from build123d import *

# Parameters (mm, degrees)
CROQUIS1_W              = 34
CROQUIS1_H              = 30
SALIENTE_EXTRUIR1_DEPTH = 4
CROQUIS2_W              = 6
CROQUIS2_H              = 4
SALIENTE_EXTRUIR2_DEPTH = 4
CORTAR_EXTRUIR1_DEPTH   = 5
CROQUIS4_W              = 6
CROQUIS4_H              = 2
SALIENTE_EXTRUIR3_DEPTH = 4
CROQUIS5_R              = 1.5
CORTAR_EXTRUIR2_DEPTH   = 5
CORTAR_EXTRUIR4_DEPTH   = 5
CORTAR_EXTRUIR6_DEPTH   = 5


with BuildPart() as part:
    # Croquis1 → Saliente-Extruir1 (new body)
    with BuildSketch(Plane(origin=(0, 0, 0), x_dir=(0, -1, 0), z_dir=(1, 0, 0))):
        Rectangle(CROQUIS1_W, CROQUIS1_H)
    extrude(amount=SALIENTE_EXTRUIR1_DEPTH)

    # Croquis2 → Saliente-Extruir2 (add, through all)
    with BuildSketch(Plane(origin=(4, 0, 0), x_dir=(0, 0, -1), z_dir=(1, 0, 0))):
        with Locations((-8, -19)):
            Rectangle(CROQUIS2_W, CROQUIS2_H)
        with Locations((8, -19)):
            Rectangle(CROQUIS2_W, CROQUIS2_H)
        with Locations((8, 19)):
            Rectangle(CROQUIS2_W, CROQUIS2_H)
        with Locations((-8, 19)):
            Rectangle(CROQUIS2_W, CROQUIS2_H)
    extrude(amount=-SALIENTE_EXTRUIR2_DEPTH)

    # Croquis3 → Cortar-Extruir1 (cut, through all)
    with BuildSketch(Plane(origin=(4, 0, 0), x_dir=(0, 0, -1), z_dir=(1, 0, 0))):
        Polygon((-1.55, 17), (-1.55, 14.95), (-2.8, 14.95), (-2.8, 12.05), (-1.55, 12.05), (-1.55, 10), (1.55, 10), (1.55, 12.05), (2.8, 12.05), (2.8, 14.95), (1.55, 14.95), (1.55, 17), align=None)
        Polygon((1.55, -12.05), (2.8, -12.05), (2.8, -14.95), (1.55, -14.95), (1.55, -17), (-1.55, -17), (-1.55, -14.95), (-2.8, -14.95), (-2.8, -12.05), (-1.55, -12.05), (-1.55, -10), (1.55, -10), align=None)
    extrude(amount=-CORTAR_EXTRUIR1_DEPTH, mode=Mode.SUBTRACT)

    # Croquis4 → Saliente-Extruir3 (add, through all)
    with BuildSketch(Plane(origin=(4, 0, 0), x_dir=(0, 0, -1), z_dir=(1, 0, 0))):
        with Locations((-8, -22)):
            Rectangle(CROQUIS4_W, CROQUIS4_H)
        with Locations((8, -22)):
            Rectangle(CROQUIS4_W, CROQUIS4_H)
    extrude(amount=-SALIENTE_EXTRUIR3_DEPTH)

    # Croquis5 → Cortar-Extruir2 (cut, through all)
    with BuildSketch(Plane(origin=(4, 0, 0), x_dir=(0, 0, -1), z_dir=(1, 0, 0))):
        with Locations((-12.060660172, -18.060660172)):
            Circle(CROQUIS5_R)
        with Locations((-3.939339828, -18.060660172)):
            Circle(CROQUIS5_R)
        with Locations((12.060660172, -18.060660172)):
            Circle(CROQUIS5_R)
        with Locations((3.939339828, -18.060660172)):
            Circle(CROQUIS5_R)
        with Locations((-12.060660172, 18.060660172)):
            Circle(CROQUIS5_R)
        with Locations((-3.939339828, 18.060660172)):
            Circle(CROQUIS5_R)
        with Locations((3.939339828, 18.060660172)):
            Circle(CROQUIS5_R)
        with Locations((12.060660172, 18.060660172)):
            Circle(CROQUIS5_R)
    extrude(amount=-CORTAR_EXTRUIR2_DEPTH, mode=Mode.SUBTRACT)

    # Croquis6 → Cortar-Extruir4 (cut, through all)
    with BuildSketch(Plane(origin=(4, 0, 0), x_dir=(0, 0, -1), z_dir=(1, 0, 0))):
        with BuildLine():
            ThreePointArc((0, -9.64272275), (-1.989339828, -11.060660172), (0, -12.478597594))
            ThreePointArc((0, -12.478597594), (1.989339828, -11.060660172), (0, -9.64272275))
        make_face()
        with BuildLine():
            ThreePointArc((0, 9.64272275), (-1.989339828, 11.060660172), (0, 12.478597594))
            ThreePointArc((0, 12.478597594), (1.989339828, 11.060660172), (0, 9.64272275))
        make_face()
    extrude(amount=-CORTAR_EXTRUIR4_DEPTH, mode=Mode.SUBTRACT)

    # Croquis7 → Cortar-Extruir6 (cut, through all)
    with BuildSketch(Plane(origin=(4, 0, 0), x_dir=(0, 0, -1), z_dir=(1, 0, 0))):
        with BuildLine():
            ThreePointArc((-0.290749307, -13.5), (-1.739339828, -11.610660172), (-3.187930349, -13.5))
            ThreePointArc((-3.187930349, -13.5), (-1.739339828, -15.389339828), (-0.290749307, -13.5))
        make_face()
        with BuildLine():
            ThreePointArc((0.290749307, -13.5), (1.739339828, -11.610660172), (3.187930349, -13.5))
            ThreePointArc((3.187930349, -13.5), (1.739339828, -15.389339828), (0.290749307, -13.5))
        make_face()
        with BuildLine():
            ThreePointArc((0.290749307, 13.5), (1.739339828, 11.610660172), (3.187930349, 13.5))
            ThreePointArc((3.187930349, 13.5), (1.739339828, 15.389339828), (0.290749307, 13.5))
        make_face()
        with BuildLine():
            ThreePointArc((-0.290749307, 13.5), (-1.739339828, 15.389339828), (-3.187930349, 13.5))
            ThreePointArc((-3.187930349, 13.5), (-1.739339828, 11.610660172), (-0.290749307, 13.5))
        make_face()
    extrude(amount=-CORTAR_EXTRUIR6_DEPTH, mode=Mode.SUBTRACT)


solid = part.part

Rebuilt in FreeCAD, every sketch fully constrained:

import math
import FreeCAD as App
import Part
import Sketcher

V = App.Vector

doc = App.newDocument("Part")
params = doc.addObject("Spreadsheet::Sheet", "Params")
for row, (alias, value) in enumerate([
    ("sketch1_width", "34 mm"),
    ("sketch1_height", "30 mm"),
    ("pad1_length", "4 mm"),
    ("sketch2_width", "4 mm"),
    ("sketch2_height", "6 mm"),
    ("sketch3_width", "2.9 mm"),
    ("sketch3_height", "3.1 mm"),
    ("sketch3_height2", "1.25 mm"),
    ("sketch4_width", "2 mm"),
    ("sketch4_height", "6 mm"),
    ("pad3_length", "4 mm"),
    ("sketch5_diameter", "3 mm"),
    ("sketch6_radius", "1.5 mm"),
    ("sketch7_radius", "1.5 mm"),
], start=1):
    params.set(f"A{row}", alias)
    params.set(f"B{row}", "=" + value)
    params.setAlias(f"B{row}", alias)

body = doc.addObject("PartDesign::Body", "Body")

# Sketch on YZ plane
sketch1 = body.newObject("Sketcher::SketchObject", "Sketch")
sketch1.AttachmentSupport = (doc.getObject("YZ_Plane"), [""])
sketch1.MapMode = "FlatFace"
sketch1.addGeometry([
    Part.LineSegment(V(17, -15, 0), V(17, 15, 0)),
    Part.LineSegment(V(17, 15, 0), V(-17, 15, 0)),
    Part.LineSegment(V(-17, 15, 0), V(-17, -15, 0)),
    Part.LineSegment(V(-17, -15, 0), V(17, -15, 0)),
], False)
sketch1.addConstraint([
    Sketcher.Constraint("Coincident", 0, 2, 1, 1),
    Sketcher.Constraint("Coincident", 1, 2, 2, 1),
    Sketcher.Constraint("Coincident", 2, 2, 3, 1),
    Sketcher.Constraint("Coincident", 3, 2, 0, 1),
    Sketcher.Constraint("Vertical", 0),
    Sketcher.Constraint("Horizontal", 1),
    Sketcher.Constraint("Vertical", 2),
    Sketcher.Constraint("Horizontal", 3),
    Sketcher.Constraint("Symmetric", 0, 2, 2, 2, -1, 1),
    Sketcher.Constraint("DistanceX", 1, 2, 1, 1, 34.0),
    Sketcher.Constraint("DistanceY", 0, 1, 0, 2, 30.0),
])
sketch1.setExpression("Constraints[9]", "Params.sketch1_width")
sketch1.setExpression("Constraints[10]", "Params.sketch1_height")
pad1 = body.newObject("PartDesign::Pad", "Pad")
pad1.Profile = sketch1
pad1.setExpression("Length", "Params.pad1_length")

# Sketch on YZ plane
sketch2 = body.newObject("Sketcher::SketchObject", "Sketch001")
sketch2.AttachmentSupport = (doc.getObject("YZ_Plane"), [""])
sketch2.MapMode = "FlatFace"
sketch2.AttachmentOffset = App.Placement(V(0, 0, 4), App.Rotation())
sketch2.addGeometry([
    Part.LineSegment(V(-17, 11, 0), V(-21, 11, 0)),  # 0
    Part.LineSegment(V(-21, 11, 0), V(-21, 5, 0)),  # 1
    Part.LineSegment(V(-21, 5, 0), V(-17, 5, 0)),  # 2
    Part.LineSegment(V(-17, 5, 0), V(-17, 11, 0)),  # 3
    Part.LineSegment(V(-17, -5, 0), V(-21, -5, 0)),  # 4
    Part.LineSegment(V(-21, -5, 0), V(-21, -11, 0)),  # 5
    Part.LineSegment(V(-21, -11, 0), V(-17, -11, 0)),  # 6
    Part.LineSegment(V(-17, -11, 0), V(-17, -5, 0)),  # 7
    Part.LineSegment(V(21, -5, 0), V(17, -5, 0)),  # 8
    Part.LineSegment(V(17, -5, 0), V(17, -11, 0)),  # 9
    Part.LineSegment(V(17, -11, 0), V(21, -11, 0)),  # 10
    Part.LineSegment(V(21, -11, 0), V(21, -5, 0)),  # 11
    Part.LineSegment(V(21, 11, 0), V(17, 11, 0)),  # 12
    Part.LineSegment(V(17, 11, 0), V(17, 5, 0)),  # 13
    Part.LineSegment(V(17, 5, 0), V(21, 5, 0)),  # 14
    Part.LineSegment(V(21, 5, 0), V(21, 11, 0)),  # 15
], False)
sketch2.addConstraint([
    Sketcher.Constraint("Coincident", 0, 2, 1, 1),
    Sketcher.Constraint("Coincident", 1, 2, 2, 1),
    Sketcher.Constraint("Coincident", 2, 2, 3, 1),
    Sketcher.Constraint("Coincident", 3, 2, 0, 1),
    Sketcher.Constraint("Coincident", 4, 2, 5, 1),
    Sketcher.Constraint("Coincident", 5, 2, 6, 1),
    Sketcher.Constraint("Coincident", 6, 2, 7, 1),
    Sketcher.Constraint("Coincident", 7, 2, 4, 1),
    Sketcher.Constraint("Coincident", 8, 2, 9, 1),
    Sketcher.Constraint("Coincident", 9, 2, 10, 1),
    Sketcher.Constraint("Coincident", 10, 2, 11, 1),
    Sketcher.Constraint("Coincident", 11, 2, 8, 1),
    Sketcher.Constraint("Coincident", 12, 2, 13, 1),
    Sketcher.Constraint("Coincident", 13, 2, 14, 1),
    Sketcher.Constraint("Coincident", 14, 2, 15, 1),
    Sketcher.Constraint("Coincident", 15, 2, 12, 1),
    Sketcher.Constraint("Horizontal", 0),
    Sketcher.Constraint("Vertical", 1),
    Sketcher.Constraint("Horizontal", 2),
    Sketcher.Constraint("Vertical", 3),
    Sketcher.Constraint("Horizontal", 4),
    Sketcher.Constraint("Vertical", 5),
    Sketcher.Constraint("Horizontal", 6),
    Sketcher.Constraint("Vertical", 7),
    Sketcher.Constraint("Horizontal", 8),
    Sketcher.Constraint("Vertical", 9),
    Sketcher.Constraint("Horizontal", 10),
    Sketcher.Constraint("Vertical", 11),
    Sketcher.Constraint("Horizontal", 12),
    Sketcher.Constraint("Vertical", 13),
    Sketcher.Constraint("Horizontal", 14),
    Sketcher.Constraint("Vertical", 15),
    Sketcher.Constraint("Symmetric", 2, 2, 8, 2, -1, 1),
    Sketcher.Constraint("Symmetric", 0, 2, 10, 2, -1, 1),
    Sketcher.Constraint("Symmetric", 6, 2, 12, 2, -1, 1),
    Sketcher.Constraint("Symmetric", 4, 2, 14, 2, -1, 1),
    Sketcher.Constraint("Symmetric", 7, 2, 8, 2, -2),
    Sketcher.Constraint("Symmetric", 5, 2, 10, 2, -2),
    Sketcher.Constraint("DistanceX", 0, 2, 0, 1, 4.0),
    Sketcher.Constraint("DistanceY", 1, 2, 1, 1, 6.0),
    Sketcher.Constraint("DistanceX", 0, 2, -1, 1, 21.0),
    Sketcher.Constraint("DistanceY", -1, 1, 0, 2, 11.0),
])
sketch2.setExpression("Constraints[38]", "Params.sketch2_width")
sketch2.setExpression("Constraints[39]", "Params.sketch2_height")
pad2 = body.newObject("PartDesign::Pad", "Pad001")
pad2.Profile = sketch2
pad2.Type = "UpToLast"
pad2.Reversed = True

# Sketch on YZ plane
sketch3 = body.newObject("Sketcher::SketchObject", "Sketch002")
sketch3.AttachmentSupport = (doc.getObject("YZ_Plane"), [""])
sketch3.MapMode = "FlatFace"
sketch3.AttachmentOffset = App.Placement(V(0, 0, 4), App.Rotation())
sketch3.addGeometry([
    Part.LineSegment(V(17, 1.6, 0), V(14.9, 1.6, 0)),  # 0
    Part.LineSegment(V(14.9, 1.6, 0), V(14.9, 2.8, 0)),  # 1
    Part.LineSegment(V(14.9, 2.8, 0), V(12.1, 2.8, 0)),  # 2
    Part.LineSegment(V(12.1, 2.8, 0), V(12.1, 1.6, 0)),  # 3
    Part.LineSegment(V(12.1, 1.6, 0), V(10, 1.6, 0)),  # 4
    Part.LineSegment(V(10, 1.6, 0), V(10, -1.6, 0)),  # 5
    Part.LineSegment(V(10, -1.6, 0), V(12.1, -1.6, 0)),  # 6
    Part.LineSegment(V(12.1, -1.6, 0), V(12.1, -2.8, 0)),  # 7
    Part.LineSegment(V(12.1, -2.8, 0), V(14.9, -2.8, 0)),  # 8
    Part.LineSegment(V(14.9, -2.8, 0), V(14.9, -1.6, 0)),  # 9
    Part.LineSegment(V(14.9, -1.6, 0), V(17, -1.6, 0)),  # 10
    Part.LineSegment(V(17, -1.6, 0), V(17, 1.6, 0)),  # 11
    Part.LineSegment(V(-12.1, -2.8, 0), V(-12.1, -1.6, 0)),  # 12
    Part.LineSegment(V(-12.1, -1.6, 0), V(-10, -1.6, 0)),  # 13
    Part.LineSegment(V(-10, -1.6, 0), V(-10, 1.6, 0)),  # 14
    Part.LineSegment(V(-10, 1.6, 0), V(-12.1, 1.6, 0)),  # 15
    Part.LineSegment(V(-12.1, 1.6, 0), V(-12.1, 2.8, 0)),  # 16
    Part.LineSegment(V(-12.1, 2.8, 0), V(-14.9, 2.8, 0)),  # 17
    Part.LineSegment(V(-14.9, 2.8, 0), V(-14.9, 1.6, 0)),  # 18
    Part.LineSegment(V(-14.9, 1.6, 0), V(-17, 1.6, 0)),  # 19
    Part.LineSegment(V(-17, 1.6, 0), V(-17, -1.6, 0)),  # 20
    Part.LineSegment(V(-17, -1.6, 0), V(-14.9, -1.6, 0)),  # 21
    Part.LineSegment(V(-14.9, -1.6, 0), V(-14.9, -2.8, 0)),  # 22
    Part.LineSegment(V(-14.9, -2.8, 0), V(-12.1, -2.8, 0)),  # 23
], False)
sketch3.addConstraint([
    Sketcher.Constraint("Coincident", 0, 2, 1, 1),
    Sketcher.Constraint("Coincident", 1, 2, 2, 1),
    Sketcher.Constraint("Coincident", 2, 2, 3, 1),
    Sketcher.Constraint("Coincident", 3, 2, 4, 1),
    Sketcher.Constraint("Coincident", 4, 2, 5, 1),
    Sketcher.Constraint("Coincident", 5, 2, 6, 1),
    Sketcher.Constraint("Coincident", 6, 2, 7, 1),
    Sketcher.Constraint("Coincident", 7, 2, 8, 1),
    Sketcher.Constraint("Coincident", 8, 2, 9, 1),
    Sketcher.Constraint("Coincident", 9, 2, 10, 1),
    Sketcher.Constraint("Coincident", 10, 2, 11, 1),
    Sketcher.Constraint("Coincident", 11, 2, 0, 1),
    Sketcher.Constraint("Coincident", 12, 2, 13, 1),
    Sketcher.Constraint("Coincident", 13, 2, 14, 1),
    Sketcher.Constraint("Coincident", 14, 2, 15, 1),
    Sketcher.Constraint("Coincident", 15, 2, 16, 1),
    Sketcher.Constraint("Coincident", 16, 2, 17, 1),
    Sketcher.Constraint("Coincident", 17, 2, 18, 1),
    Sketcher.Constraint("Coincident", 18, 2, 19, 1),
    Sketcher.Constraint("Coincident", 19, 2, 20, 1),
    Sketcher.Constraint("Coincident", 20, 2, 21, 1),
    Sketcher.Constraint("Coincident", 21, 2, 22, 1),
    Sketcher.Constraint("Coincident", 22, 2, 23, 1),
    Sketcher.Constraint("Coincident", 23, 2, 12, 1),
    Sketcher.Constraint("Horizontal", 0),
    Sketcher.Constraint("Vertical", 1),
    Sketcher.Constraint("Horizontal", 2),
    Sketcher.Constraint("Vertical", 3),
    Sketcher.Constraint("Horizontal", 4),
    Sketcher.Constraint("Vertical", 5),
    Sketcher.Constraint("Horizontal", 6),
    Sketcher.Constraint("Vertical", 7),
    Sketcher.Constraint("Horizontal", 8),
    Sketcher.Constraint("Vertical", 9),
    Sketcher.Constraint("Horizontal", 10),
    Sketcher.Constraint("Vertical", 11),
    Sketcher.Constraint("Vertical", 12),
    Sketcher.Constraint("Horizontal", 13),
    Sketcher.Constraint("Vertical", 14),
    Sketcher.Constraint("Horizontal", 15),
    Sketcher.Constraint("Vertical", 16),
    Sketcher.Constraint("Horizontal", 17),
    Sketcher.Constraint("Vertical", 18),
    Sketcher.Constraint("Horizontal", 19),
    Sketcher.Constraint("Vertical", 20),
    Sketcher.Constraint("Horizontal", 21),
    Sketcher.Constraint("Vertical", 22),
    Sketcher.Constraint("Horizontal", 23),
    Sketcher.Constraint("Symmetric", 3, 2, 12, 2, -1, 1),
    Sketcher.Constraint("Symmetric", 5, 2, 14, 2, -1, 1),
    Sketcher.Constraint("Symmetric", 7, 2, 16, 2, -1, 1),
    Sketcher.Constraint("Symmetric", 9, 2, 18, 2, -1, 1),
    Sketcher.Constraint("Symmetric", 11, 2, 20, 2, -1, 1),
    Sketcher.Constraint("Symmetric", 1, 2, 22, 2, -1, 1),
    Sketcher.Constraint("Symmetric", 6, 2, 12, 2, -2),
    Sketcher.Constraint("Symmetric", 1, 2, 17, 2, -2),
    Sketcher.Constraint("Horizontal", 0, 2, 3, 2),
    Sketcher.Constraint("Horizontal", 6, 2, 9, 2),
    Sketcher.Constraint("Equal", 0, 4),
    Sketcher.Constraint("DistanceX", 2, 2, 2, 1, 2.9),
    Sketcher.Constraint("DistanceY", 5, 2, 5, 1, 3.1),
    Sketcher.Constraint("DistanceX", -1, 1, 4, 2, 10.0),
    Sketcher.Constraint("DistanceX", -1, 1, 10, 2, 17.0),
    Sketcher.Constraint("DistanceY", 1, 1, 1, 2, 1.25),
])
sketch3.setExpression("Constraints[59]", "Params.sketch3_width")
sketch3.setExpression("Constraints[60]", "Params.sketch3_height")
sketch3.setExpression("Constraints[63]", "Params.sketch3_height2")
pocket1 = body.newObject("PartDesign::Pocket", "Pocket")
pocket1.Profile = sketch3
pocket1.Type = "ThroughAll"

# Sketch on YZ plane
sketch4 = body.newObject("Sketcher::SketchObject", "Sketch003")
sketch4.AttachmentSupport = (doc.getObject("YZ_Plane"), [""])
sketch4.MapMode = "FlatFace"
sketch4.AttachmentOffset = App.Placement(V(0, 0, 4), App.Rotation())
sketch4.addGeometry([
    Part.LineSegment(V(-21, 11, 0), V(-23, 11, 0)),  # 0
    Part.LineSegment(V(-23, 11, 0), V(-23, 5, 0)),  # 1
    Part.LineSegment(V(-23, 5, 0), V(-21, 5, 0)),  # 2
    Part.LineSegment(V(-21, 5, 0), V(-21, 11, 0)),  # 3
    Part.LineSegment(V(-21, -5, 0), V(-23, -5, 0)),  # 4
    Part.LineSegment(V(-23, -5, 0), V(-23, -11, 0)),  # 5
    Part.LineSegment(V(-23, -11, 0), V(-21, -11, 0)),  # 6
    Part.LineSegment(V(-21, -11, 0), V(-21, -5, 0)),  # 7
], False)
sketch4.addConstraint([
    Sketcher.Constraint("Coincident", 0, 2, 1, 1),
    Sketcher.Constraint("Coincident", 1, 2, 2, 1),
    Sketcher.Constraint("Coincident", 2, 2, 3, 1),
    Sketcher.Constraint("Coincident", 3, 2, 0, 1),
    Sketcher.Constraint("Coincident", 4, 2, 5, 1),
    Sketcher.Constraint("Coincident", 5, 2, 6, 1),
    Sketcher.Constraint("Coincident", 6, 2, 7, 1),
    Sketcher.Constraint("Coincident", 7, 2, 4, 1),
    Sketcher.Constraint("Horizontal", 0),
    Sketcher.Constraint("Vertical", 1),
    Sketcher.Constraint("Horizontal", 2),
    Sketcher.Constraint("Vertical", 3),
    Sketcher.Constraint("Horizontal", 4),
    Sketcher.Constraint("Vertical", 5),
    Sketcher.Constraint("Horizontal", 6),
    Sketcher.Constraint("Vertical", 7),
    Sketcher.Constraint("Symmetric", 1, 2, 4, 2, -1),
    Sketcher.Constraint("Symmetric", 3, 2, 6, 2, -1),
    Sketcher.Constraint("DistanceX", 0, 2, 0, 1, 2.0),
    Sketcher.Constraint("DistanceY", 1, 2, 1, 1, 6.0),
    Sketcher.Constraint("DistanceX", 0, 2, -1, 1, 23.0),
    Sketcher.Constraint("DistanceY", -1, 1, 0, 2, 11.0),
])
sketch4.setExpression("Constraints[18]", "Params.sketch4_width")
sketch4.setExpression("Constraints[19]", "Params.sketch4_height")
pad3 = body.newObject("PartDesign::Pad", "Pad002")
pad3.Profile = sketch4
pad3.setExpression("Length", "Params.pad3_length")
pad3.Reversed = True

# Sketch on YZ plane
sketch5 = body.newObject("Sketcher::SketchObject", "Sketch004")
sketch5.AttachmentSupport = (doc.getObject("YZ_Plane"), [""])
sketch5.MapMode = "FlatFace"
sketch5.AttachmentOffset = App.Placement(V(0, 0, 4), App.Rotation())
sketch5.addGeometry([
    Part.Circle(V(-18.1, 12.1, 0), V(0, 0, 1), 1.5),  # 0
    Part.Circle(V(-18.1, 3.9, 0), V(0, 0, 1), 1.5),  # 1
    Part.Circle(V(-18.1, -12.1, 0), V(0, 0, 1), 1.5),  # 2
    Part.Circle(V(-18.1, -3.9, 0), V(0, 0, 1), 1.5),  # 3
    Part.Circle(V(18.1, 12.1, 0), V(0, 0, 1), 1.5),  # 4
    Part.Circle(V(18.1, 3.9, 0), V(0, 0, 1), 1.5),  # 5
    Part.Circle(V(18.1, -3.9, 0), V(0, 0, 1), 1.5),  # 6
    Part.Circle(V(18.1, -12.1, 0), V(0, 0, 1), 1.5),  # 7
], False)
sketch5.addConstraint([
    Sketcher.Constraint("Equal", 0, 1),
    Sketcher.Constraint("Equal", 1, 2),
    Sketcher.Constraint("Equal", 2, 3),
    Sketcher.Constraint("Equal", 3, 4),
    Sketcher.Constraint("Equal", 4, 5),
    Sketcher.Constraint("Equal", 5, 6),
    Sketcher.Constraint("Equal", 6, 7),
    Sketcher.Constraint("Symmetric", 2, 3, 4, 3, -1, 1),
    Sketcher.Constraint("Symmetric", 3, 3, 5, 3, -1, 1),
    Sketcher.Constraint("Symmetric", 1, 3, 6, 3, -1, 1),
    Sketcher.Constraint("Symmetric", 0, 3, 7, 3, -1, 1),
    Sketcher.Constraint("Symmetric", 0, 3, 4, 3, -2),
    Sketcher.Constraint("Symmetric", 1, 3, 5, 3, -2),
    Sketcher.Constraint("Vertical", 0, 3, 1, 3),
    Sketcher.Constraint("Diameter", 0, 3.0),
    Sketcher.Constraint("DistanceY", 2, 3, 1, 3, 16.0),
    Sketcher.Constraint("DistanceX", 0, 3, -1, 1, 18.06066),
    Sketcher.Constraint("DistanceY", -1, 1, 0, 3, 12.06066),
])
sketch5.setExpression("Constraints[14]", "Params.sketch5_diameter")
pocket2 = body.newObject("PartDesign::Pocket", "Pocket001")
pocket2.Profile = sketch5
pocket2.Type = "ThroughAll"

# Sketch on YZ plane
sketch6 = body.newObject("Sketcher::SketchObject", "Sketch005")
sketch6.AttachmentSupport = (doc.getObject("YZ_Plane"), [""])
sketch6.MapMode = "FlatFace"
sketch6.AttachmentOffset = App.Placement(V(0, 0, 4), App.Rotation())
sketch6.addGeometry([
    Part.ArcOfCircle(Part.Circle(V(-11.1, 0.5, 0), V(0, 0, 1), 1.5), math.radians(-19), math.radians(199)),
    Part.ArcOfCircle(Part.Circle(V(-11.1, -0.5, 0), V(0, 0, 1), 1.5), math.radians(161), math.radians(379)),
    Part.ArcOfCircle(Part.Circle(V(11.1, 0.5, 0), V(0, 0, 1), 1.5), math.radians(-19), math.radians(199)),
    Part.ArcOfCircle(Part.Circle(V(11.1, -0.5, 0), V(0, 0, 1), 1.5), math.radians(161), math.radians(379)),
], False)
sketch6.addConstraint([
    Sketcher.Constraint("Coincident", 0, 1, 1, 2),
    Sketcher.Constraint("Coincident", 1, 1, 0, 2),
    Sketcher.Constraint("Coincident", 2, 1, 3, 2),
    Sketcher.Constraint("Coincident", 3, 1, 2, 2),
    Sketcher.Constraint("Equal", 0, 1),
    Sketcher.Constraint("Equal", 1, 2),
    Sketcher.Constraint("Equal", 2, 3),
    Sketcher.Constraint("Symmetric", 1, 3, 2, 3, -1, 1),
    Sketcher.Constraint("Symmetric", 0, 3, 3, 3, -1, 1),
    Sketcher.Constraint("Symmetric", 0, 3, 2, 3, -2),
    Sketcher.Constraint("Radius", 0, 1.5),
    Sketcher.Constraint("DistanceX", 0, 3, -1, 1, 11.06066),
    Sketcher.Constraint("DistanceY", -1, 1, 0, 3, 0.48934),
])
sketch6.setExpression("Constraints[10]", "Params.sketch6_radius")
pocket3 = body.newObject("PartDesign::Pocket", "Pocket002")
pocket3.Profile = sketch6
pocket3.Type = "ThroughAll"

# Sketch on YZ plane
sketch7 = body.newObject("Sketcher::SketchObject", "Sketch006")
sketch7.AttachmentSupport = (doc.getObject("YZ_Plane"), [""])
sketch7.MapMode = "FlatFace"
sketch7.AttachmentOffset = App.Placement(V(0, 0, 4), App.Rotation())
sketch7.addGeometry([
    Part.ArcOfCircle(Part.Circle(V(-13.1, 1.7, 0), V(0, 0, 1), 1.5), math.radians(-105), math.radians(105)),  # 0
    Part.ArcOfCircle(Part.Circle(V(-13.9, 1.7, 0), V(0, 0, 1), 1.5), math.radians(75), math.radians(285)),  # 1
    Part.ArcOfCircle(Part.Circle(V(-13.1, -1.7, 0), V(0, 0, 1), 1.5), math.radians(-105), math.radians(105)),  # 2
    Part.ArcOfCircle(Part.Circle(V(-13.9, -1.7, 0), V(0, 0, 1), 1.5), math.radians(75), math.radians(285)),  # 3
    Part.ArcOfCircle(Part.Circle(V(13.1, -1.7, 0), V(0, 0, 1), 1.5), math.radians(75), math.radians(285)),  # 4
    Part.ArcOfCircle(Part.Circle(V(13.9, -1.7, 0), V(0, 0, 1), 1.5), math.radians(-105), math.radians(105)),  # 5
    Part.ArcOfCircle(Part.Circle(V(13.9, 1.7, 0), V(0, 0, 1), 1.5), math.radians(-105), math.radians(105)),  # 6
    Part.ArcOfCircle(Part.Circle(V(13.1, 1.7, 0), V(0, 0, 1), 1.5), math.radians(75), math.radians(285)),  # 7
], False)
sketch7.addConstraint([
    Sketcher.Constraint("Coincident", 0, 1, 1, 2),
    Sketcher.Constraint("Coincident", 1, 1, 0, 2),
    Sketcher.Constraint("Coincident", 2, 1, 3, 2),
    Sketcher.Constraint("Coincident", 3, 1, 2, 2),
    Sketcher.Constraint("Coincident", 4, 1, 5, 2),
    Sketcher.Constraint("Coincident", 5, 1, 4, 2),
    Sketcher.Constraint("Coincident", 6, 1, 7, 2),
    Sketcher.Constraint("Coincident", 7, 1, 6, 2),
    Sketcher.Constraint("Equal", 0, 1),
    Sketcher.Constraint("Equal", 1, 2),
    Sketcher.Constraint("Equal", 2, 3),
    Sketcher.Constraint("Equal", 3, 4),
    Sketcher.Constraint("Equal", 4, 5),
    Sketcher.Constraint("Equal", 5, 6),
    Sketcher.Constraint("Equal", 6, 7),
    Sketcher.Constraint("Symmetric", 0, 3, 4, 3, -1, 1),
    Sketcher.Constraint("Symmetric", 1, 3, 5, 3, -1, 1),
    Sketcher.Constraint("Symmetric", 3, 3, 6, 3, -1, 1),
    Sketcher.Constraint("Symmetric", 2, 3, 7, 3, -1, 1),
    Sketcher.Constraint("Symmetric", 2, 3, 4, 3, -2),
    Sketcher.Constraint("Symmetric", 3, 3, 5, 3, -2),
    Sketcher.Constraint("Horizontal", 0, 3, 1, 3),
    Sketcher.Constraint("Radius", 0, 1.5),
    Sketcher.Constraint("DistanceX", 3, 3, 4, 3, 27.0),
    Sketcher.Constraint("DistanceY", 3, 1, 0, 1, 0.581499),
    Sketcher.Constraint("DistanceX", 0, 3, -1, 1, 13.11066),
])
sketch7.setExpression("Constraints[22]", "Params.sketch7_radius")
pocket4 = body.newObject("PartDesign::Pocket", "Pocket003")
pocket4.Profile = sketch7
pocket4.Type = "ThroughAll"

doc.recompute()
